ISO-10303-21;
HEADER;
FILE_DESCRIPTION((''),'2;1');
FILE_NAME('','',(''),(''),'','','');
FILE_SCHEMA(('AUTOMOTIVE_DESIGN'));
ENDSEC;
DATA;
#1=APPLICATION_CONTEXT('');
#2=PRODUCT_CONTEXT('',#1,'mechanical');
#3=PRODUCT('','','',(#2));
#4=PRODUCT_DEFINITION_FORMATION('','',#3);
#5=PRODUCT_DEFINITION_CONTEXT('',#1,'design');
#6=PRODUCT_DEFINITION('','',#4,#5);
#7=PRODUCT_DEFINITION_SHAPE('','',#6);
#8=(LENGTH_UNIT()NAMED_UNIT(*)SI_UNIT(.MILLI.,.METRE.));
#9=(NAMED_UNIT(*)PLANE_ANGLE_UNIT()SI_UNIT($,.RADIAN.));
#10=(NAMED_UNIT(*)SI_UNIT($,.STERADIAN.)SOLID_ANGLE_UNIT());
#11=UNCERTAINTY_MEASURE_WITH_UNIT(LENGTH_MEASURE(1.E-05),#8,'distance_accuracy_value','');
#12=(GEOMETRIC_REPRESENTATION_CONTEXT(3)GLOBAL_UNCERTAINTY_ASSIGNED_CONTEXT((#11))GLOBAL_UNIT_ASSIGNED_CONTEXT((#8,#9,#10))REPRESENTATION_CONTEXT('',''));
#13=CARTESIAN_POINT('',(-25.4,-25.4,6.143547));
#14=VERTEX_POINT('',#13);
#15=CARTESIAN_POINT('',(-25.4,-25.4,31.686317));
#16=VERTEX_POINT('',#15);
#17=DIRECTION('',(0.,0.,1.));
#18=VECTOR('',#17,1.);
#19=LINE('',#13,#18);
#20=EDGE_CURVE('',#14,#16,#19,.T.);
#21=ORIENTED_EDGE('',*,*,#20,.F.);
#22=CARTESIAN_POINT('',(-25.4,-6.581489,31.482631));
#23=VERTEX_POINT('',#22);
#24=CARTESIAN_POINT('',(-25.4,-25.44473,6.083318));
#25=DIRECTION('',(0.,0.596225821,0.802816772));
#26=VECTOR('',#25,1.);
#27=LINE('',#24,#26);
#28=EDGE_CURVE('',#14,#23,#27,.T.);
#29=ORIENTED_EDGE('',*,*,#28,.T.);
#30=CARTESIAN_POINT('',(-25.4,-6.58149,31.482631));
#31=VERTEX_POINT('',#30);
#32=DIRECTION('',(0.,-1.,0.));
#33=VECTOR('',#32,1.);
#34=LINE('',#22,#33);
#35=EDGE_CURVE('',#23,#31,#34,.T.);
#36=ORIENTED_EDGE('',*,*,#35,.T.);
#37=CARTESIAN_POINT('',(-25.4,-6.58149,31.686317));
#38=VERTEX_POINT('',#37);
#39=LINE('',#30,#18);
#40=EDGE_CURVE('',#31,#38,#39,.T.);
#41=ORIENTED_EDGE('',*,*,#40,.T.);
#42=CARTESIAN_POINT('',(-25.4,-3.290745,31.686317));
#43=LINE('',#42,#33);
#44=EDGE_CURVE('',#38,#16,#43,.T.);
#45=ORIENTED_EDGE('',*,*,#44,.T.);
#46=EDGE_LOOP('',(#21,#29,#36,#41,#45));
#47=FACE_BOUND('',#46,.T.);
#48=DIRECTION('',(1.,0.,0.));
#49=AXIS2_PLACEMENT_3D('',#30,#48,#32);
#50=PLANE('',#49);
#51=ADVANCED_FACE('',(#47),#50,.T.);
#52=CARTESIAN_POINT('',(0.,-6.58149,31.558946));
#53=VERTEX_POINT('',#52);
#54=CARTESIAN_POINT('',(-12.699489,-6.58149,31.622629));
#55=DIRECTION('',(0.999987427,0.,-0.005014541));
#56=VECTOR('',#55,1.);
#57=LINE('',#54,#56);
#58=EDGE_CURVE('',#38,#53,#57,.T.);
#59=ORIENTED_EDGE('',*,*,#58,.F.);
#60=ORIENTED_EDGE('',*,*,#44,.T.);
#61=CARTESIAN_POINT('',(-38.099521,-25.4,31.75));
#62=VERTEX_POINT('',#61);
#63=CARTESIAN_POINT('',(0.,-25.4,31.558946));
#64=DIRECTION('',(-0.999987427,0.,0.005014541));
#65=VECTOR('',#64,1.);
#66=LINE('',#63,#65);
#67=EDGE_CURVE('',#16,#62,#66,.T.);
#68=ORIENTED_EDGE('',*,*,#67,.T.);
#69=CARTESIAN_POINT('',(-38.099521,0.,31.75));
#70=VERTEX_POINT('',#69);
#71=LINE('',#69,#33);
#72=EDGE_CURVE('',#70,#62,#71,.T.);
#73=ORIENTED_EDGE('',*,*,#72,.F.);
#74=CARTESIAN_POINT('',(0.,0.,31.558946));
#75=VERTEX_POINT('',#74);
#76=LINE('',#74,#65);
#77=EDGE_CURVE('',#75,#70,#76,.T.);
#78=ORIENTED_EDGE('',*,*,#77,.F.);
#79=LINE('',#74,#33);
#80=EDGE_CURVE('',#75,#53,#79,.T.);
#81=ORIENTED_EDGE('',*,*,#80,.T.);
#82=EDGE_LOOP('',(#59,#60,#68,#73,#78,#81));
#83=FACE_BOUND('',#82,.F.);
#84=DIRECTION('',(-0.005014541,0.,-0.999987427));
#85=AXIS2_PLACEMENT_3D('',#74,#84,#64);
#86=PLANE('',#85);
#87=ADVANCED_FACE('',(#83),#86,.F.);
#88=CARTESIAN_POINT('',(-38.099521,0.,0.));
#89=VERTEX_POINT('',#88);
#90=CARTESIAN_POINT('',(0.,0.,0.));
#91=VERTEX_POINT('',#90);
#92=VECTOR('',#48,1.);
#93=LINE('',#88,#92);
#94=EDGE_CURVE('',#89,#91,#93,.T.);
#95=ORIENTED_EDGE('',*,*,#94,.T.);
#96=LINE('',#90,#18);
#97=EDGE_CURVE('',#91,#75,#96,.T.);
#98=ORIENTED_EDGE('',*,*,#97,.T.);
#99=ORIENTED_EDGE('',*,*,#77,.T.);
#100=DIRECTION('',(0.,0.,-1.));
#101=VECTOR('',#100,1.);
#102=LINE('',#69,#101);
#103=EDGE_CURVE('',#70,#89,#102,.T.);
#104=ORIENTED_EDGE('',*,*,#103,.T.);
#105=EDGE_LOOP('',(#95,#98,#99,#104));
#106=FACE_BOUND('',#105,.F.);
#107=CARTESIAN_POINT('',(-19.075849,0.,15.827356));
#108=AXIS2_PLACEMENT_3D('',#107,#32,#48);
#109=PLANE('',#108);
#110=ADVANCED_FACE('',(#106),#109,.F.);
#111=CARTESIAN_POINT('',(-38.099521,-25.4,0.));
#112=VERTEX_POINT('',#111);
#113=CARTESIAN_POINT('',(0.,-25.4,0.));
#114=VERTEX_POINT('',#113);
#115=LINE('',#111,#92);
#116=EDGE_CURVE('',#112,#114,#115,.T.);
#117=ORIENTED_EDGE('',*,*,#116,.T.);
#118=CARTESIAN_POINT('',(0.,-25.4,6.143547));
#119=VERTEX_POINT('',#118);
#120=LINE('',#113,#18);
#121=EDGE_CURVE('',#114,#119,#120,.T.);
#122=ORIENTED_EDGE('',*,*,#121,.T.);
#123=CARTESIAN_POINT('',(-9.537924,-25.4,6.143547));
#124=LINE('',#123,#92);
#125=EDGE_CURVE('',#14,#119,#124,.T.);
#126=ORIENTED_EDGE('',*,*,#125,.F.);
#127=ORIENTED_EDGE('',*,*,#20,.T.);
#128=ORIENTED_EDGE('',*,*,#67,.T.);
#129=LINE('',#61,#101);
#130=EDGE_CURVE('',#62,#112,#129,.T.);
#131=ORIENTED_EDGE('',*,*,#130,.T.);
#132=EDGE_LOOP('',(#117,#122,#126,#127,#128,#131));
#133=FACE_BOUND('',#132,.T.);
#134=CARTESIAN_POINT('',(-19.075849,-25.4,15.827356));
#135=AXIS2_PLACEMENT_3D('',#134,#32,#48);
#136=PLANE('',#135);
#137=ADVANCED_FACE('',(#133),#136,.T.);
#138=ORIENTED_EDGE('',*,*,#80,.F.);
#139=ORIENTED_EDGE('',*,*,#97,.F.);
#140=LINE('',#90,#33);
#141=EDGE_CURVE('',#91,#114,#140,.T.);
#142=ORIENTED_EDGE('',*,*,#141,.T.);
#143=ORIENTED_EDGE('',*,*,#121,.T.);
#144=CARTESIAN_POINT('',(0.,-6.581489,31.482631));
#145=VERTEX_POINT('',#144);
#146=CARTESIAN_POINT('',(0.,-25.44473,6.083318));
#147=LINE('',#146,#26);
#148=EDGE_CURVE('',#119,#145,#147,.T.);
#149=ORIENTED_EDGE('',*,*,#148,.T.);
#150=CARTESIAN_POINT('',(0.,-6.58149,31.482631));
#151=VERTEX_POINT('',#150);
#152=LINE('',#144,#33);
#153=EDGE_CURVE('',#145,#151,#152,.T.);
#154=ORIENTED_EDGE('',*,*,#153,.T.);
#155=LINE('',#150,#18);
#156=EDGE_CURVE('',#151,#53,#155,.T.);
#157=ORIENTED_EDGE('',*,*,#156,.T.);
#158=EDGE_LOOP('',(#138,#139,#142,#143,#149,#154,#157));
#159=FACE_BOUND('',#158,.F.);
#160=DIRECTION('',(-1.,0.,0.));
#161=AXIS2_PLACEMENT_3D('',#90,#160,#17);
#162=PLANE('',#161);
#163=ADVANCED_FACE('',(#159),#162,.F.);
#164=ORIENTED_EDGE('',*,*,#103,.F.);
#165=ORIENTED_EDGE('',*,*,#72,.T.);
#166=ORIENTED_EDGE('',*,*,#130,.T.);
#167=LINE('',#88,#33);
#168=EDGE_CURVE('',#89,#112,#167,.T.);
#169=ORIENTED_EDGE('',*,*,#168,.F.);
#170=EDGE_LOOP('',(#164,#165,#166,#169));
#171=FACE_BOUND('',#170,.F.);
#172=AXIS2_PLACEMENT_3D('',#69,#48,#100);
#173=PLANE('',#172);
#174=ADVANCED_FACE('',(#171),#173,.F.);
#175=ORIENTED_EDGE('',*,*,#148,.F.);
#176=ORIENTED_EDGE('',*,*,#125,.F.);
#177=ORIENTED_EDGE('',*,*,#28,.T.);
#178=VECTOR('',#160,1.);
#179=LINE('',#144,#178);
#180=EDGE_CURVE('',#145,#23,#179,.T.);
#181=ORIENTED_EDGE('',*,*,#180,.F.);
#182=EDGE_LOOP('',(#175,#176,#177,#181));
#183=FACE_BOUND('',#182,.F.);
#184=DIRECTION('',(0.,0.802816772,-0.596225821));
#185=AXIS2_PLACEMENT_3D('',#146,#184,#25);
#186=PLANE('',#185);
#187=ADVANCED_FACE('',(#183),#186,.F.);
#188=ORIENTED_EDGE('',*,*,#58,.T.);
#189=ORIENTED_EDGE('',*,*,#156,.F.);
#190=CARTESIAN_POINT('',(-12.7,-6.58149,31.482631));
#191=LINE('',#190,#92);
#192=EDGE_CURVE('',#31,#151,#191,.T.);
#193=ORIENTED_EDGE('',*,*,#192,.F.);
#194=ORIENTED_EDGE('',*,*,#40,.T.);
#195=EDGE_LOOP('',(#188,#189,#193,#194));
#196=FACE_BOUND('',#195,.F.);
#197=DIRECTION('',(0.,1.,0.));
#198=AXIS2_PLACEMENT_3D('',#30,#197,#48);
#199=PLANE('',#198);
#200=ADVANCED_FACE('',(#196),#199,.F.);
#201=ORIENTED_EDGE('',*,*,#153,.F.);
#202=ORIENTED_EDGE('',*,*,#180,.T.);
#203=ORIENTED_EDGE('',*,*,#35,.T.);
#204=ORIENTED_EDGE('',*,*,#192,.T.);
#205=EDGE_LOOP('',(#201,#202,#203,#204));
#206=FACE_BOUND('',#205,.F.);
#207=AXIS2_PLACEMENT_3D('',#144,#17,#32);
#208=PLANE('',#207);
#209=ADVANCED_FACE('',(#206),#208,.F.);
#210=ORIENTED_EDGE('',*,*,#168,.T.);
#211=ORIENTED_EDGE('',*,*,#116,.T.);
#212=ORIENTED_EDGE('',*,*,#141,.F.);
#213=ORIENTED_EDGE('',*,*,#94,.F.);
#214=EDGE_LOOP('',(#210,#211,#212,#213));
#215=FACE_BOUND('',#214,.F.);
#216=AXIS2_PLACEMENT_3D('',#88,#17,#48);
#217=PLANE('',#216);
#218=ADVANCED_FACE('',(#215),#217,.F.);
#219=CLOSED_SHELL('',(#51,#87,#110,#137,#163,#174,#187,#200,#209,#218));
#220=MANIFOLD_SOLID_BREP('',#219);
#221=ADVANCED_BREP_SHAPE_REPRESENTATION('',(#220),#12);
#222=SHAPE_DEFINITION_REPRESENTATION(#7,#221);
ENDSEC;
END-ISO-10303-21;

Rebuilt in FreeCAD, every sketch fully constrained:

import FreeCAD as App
import Part
import Sketcher

V = App.Vector
Q = App.Units.Quantity

doc = App.newDocument("Part")
body = doc.addObject("PartDesign::Body", "Body")

# Sketch on XZ plane
sketch1 = body.newObject("Sketcher::SketchObject", "Sketch")
sketch1.AttachmentSupport = (doc.getObject("XZ_Plane"), [""])
sketch1.MapMode = "FlatFace"
sketch1.addGeometry([
    Part.LineSegment(V(0, 31.558946, 0), V(-38.099521, 31.75, 0)),
    Part.LineSegment(V(-38.099521, 31.75, 0), V(-38.099521, 0, 0)),
    Part.LineSegment(V(-38.099521, 0, 0), V(0, 0, 0)),
    Part.LineSegment(V(0, 0, 0), V(0, 31.558946, 0)),
], False)
sketch1.addConstraint([
    Sketcher.Constraint("Coincident", 0, 2, 1, 1),
    Sketcher.Constraint("Coincident", 1, 2, 2, 1),
    Sketcher.Constraint("Coincident", 2, 2, 3, 1),
    Sketcher.Constraint("Coincident", 3, 2, 0, 1),
    Sketcher.Constraint("Vertical", 1),
    Sketcher.Constraint("Horizontal", 2),
    Sketcher.Constraint("Vertical", 3),
    Sketcher.Constraint("Coincident", 2, 2, -1, 1),
    Sketcher.Constraint("Distance", 0, Q("1.5 in")),
    Sketcher.Constraint("DistanceY", 1, 2, 1, 1, Q("1.25 in")),
    Sketcher.Constraint("DistanceX", 2, 1, 2, 2, 38.099521),
])
pad1 = body.newObject("PartDesign::Pad", "Pad")
pad1.Profile = sketch1
pad1.Length = Q("1 in")

# Sketch on YZ plane
sketch2 = body.newObject("Sketcher::SketchObject", "Sketch001")
sketch2.AttachmentSupport = (doc.getObject("YZ_Plane"), [""])
sketch2.MapMode = "FlatFace"
sketch2.addGeometry([
    Part.LineSegment(V(-25.44473, 6.083318, 0), V(-6.581489, 31.482631, 0)),
    Part.LineSegment(V(-6.581489, 31.482631, 0), V(-25.631489, 31.482631, 0)),
    Part.LineSegment(V(-25.631489, 31.482631, 0), V(-25.44473, 6.083318, 0)),
], False)
sketch2.addConstraint([
    Sketcher.Constraint("Coincident", 0, 2, 1, 1),
    Sketcher.Constraint("Coincident", 1, 2, 2, 1),
    Sketcher.Constraint("Coincident", 2, 2, 0, 1),
    Sketcher.Constraint("Horizontal", 1),
    Sketcher.Constraint("Distance", 2, Q("1 in")),
    Sketcher.Constraint("DistanceX", 1, 2, 1, 1, Q("0.75 in")),
    Sketcher.Constraint("DistanceX", 0, 2, -1, 1, 6.581489),
    Sketcher.Constraint("DistanceY", -1, 1, 0, 2, 31.482631),
    Sketcher.Constraint("DistanceX", 2, 2, -1, 1, 25.44473),
])
pocket1 = body.newObject("PartDesign::Pocket", "Pocket")
pocket1.Profile = sketch2
pocket1.Length = Q("1 in")

# Sketch on XY plane
sketch3 = body.newObject("Sketcher::SketchObject", "Sketch002")
sketch3.AttachmentSupport = (doc.getObject("XY_Plane"), [""])
sketch3.MapMode = "FlatFace"
sketch3.AttachmentOffset = App.Placement(V(0, 0, 31.482631), App.Rotation())
sketch3.addGeometry([
    Part.LineSegment(V(-25.4, -25.4, 0), V(-25.4, -6.58149, 0)),
    Part.LineSegment(V(-25.4, -6.58149, 0), V(0, -6.58149, 0)),
    Part.LineSegment(V(0, -6.58149, 0), V(0, -25.4, 0)),
    Part.LineSegment(V(0, -25.4, 0), V(-25.4, -25.4, 0)),
], False)
sketch3.addConstraint([
    Sketcher.Constraint("Coincident", 0, 2, 1, 1),
    Sketcher.Constraint("Coincident", 1, 2, 2, 1),
    Sketcher.Constraint("Coincident", 2, 2, 3, 1),
    Sketcher.Constraint("Coincident", 3, 2, 0, 1),
    Sketcher.Constraint("Vertical", 0),
    Sketcher.Constraint("Horizontal", 1),
    Sketcher.Constraint("Vertical", 2),
    Sketcher.Constraint("Horizontal", 3),
    Sketcher.Constraint("PointOnObject", 1, 2, -2),
    Sketcher.Constraint("DistanceX", 1, 1, 1, 2, Q("1 in")),
    Sketcher.Constraint("DistanceY", 2, 2, -1, 1, Q("1 in")),
    Sketcher.Constraint("DistanceY", 0, 1, 0, 2, 18.81851),
])
pocket2 = body.newObject("PartDesign::Pocket", "Pocket001")
pocket2.Profile = sketch3
pocket2.Type = "ThroughAll"
pocket2.Reversed = True

doc.recompute()
